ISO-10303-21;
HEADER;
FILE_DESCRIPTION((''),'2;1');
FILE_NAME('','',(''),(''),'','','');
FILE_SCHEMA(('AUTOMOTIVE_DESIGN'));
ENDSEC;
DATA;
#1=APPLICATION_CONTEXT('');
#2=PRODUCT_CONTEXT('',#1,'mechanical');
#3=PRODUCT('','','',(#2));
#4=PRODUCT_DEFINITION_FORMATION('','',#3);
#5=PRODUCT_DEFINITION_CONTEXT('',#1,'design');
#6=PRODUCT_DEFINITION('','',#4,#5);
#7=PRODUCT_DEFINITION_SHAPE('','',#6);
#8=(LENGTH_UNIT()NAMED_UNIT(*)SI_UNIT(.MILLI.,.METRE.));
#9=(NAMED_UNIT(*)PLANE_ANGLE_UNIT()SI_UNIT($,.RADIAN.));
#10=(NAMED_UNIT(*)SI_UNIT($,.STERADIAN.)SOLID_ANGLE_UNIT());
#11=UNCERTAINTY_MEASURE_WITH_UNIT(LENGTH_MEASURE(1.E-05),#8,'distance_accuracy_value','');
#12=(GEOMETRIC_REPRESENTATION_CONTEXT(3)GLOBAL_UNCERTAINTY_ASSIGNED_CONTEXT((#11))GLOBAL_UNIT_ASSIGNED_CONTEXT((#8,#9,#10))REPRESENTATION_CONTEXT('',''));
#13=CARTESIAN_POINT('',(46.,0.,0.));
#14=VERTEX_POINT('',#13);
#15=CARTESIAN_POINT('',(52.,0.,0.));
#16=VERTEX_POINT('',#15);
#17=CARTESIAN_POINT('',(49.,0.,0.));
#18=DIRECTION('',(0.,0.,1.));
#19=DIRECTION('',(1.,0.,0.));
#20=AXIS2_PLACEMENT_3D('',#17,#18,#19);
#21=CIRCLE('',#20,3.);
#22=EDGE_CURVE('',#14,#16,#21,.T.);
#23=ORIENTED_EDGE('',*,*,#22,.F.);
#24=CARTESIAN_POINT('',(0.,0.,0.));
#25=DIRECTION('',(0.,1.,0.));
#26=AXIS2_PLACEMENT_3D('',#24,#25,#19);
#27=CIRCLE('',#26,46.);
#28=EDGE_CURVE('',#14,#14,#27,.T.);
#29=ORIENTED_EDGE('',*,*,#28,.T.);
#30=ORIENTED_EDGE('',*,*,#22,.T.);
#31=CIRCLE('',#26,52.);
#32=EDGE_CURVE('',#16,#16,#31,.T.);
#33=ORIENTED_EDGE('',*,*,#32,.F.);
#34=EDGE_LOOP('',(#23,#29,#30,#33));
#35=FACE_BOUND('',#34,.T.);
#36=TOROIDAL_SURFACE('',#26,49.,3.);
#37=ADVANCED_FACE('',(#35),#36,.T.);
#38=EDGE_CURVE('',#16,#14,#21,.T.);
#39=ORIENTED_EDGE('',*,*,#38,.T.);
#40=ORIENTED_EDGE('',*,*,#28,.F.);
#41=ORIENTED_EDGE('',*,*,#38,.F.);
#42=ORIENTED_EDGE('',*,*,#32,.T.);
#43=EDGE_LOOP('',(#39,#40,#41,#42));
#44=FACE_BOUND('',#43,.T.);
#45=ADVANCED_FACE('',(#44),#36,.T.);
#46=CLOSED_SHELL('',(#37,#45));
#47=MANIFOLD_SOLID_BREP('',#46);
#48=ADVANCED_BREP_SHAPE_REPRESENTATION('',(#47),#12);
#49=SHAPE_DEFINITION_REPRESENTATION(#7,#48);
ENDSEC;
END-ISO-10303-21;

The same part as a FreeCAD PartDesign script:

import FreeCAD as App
import Part
import Sketcher
Q = App.Units.Quantity

doc = App.newDocument("Part")
body = doc.addObject("PartDesign::Body", "Body")

# Sketch on XY plane
sketch1 = doc.addObject("Sketcher::SketchObject", "Sketch")
body.addObject(sketch1)
sketch1.AttachmentSupport = (doc.XY_Plane, [""])
sketch1.MapMode = "FlatFace"
sketch1.addGeometry(Part.Circle(App.Vector(49, 0, 0), App.Vector(0, 0, 1), 3), False)
sketch1.addConstraint(Sketcher.Constraint("PointOnObject", 0, 3, -1))
sketch1.addConstraint(Sketcher.Constraint("Diameter", 0, Q("6 mm")))
sketch1.addConstraint(Sketcher.Constraint("DistanceX", -1, 1, 0, 3, Q("49 mm")))
revolution = doc.addObject("PartDesign::Revolution", "Revolution")
body.addObject(revolution)
revolution.Profile = sketch1
revolution.ReferenceAxis = (sketch1, ["V_Axis"])
revolution.Angle = 360

doc.recompute()
